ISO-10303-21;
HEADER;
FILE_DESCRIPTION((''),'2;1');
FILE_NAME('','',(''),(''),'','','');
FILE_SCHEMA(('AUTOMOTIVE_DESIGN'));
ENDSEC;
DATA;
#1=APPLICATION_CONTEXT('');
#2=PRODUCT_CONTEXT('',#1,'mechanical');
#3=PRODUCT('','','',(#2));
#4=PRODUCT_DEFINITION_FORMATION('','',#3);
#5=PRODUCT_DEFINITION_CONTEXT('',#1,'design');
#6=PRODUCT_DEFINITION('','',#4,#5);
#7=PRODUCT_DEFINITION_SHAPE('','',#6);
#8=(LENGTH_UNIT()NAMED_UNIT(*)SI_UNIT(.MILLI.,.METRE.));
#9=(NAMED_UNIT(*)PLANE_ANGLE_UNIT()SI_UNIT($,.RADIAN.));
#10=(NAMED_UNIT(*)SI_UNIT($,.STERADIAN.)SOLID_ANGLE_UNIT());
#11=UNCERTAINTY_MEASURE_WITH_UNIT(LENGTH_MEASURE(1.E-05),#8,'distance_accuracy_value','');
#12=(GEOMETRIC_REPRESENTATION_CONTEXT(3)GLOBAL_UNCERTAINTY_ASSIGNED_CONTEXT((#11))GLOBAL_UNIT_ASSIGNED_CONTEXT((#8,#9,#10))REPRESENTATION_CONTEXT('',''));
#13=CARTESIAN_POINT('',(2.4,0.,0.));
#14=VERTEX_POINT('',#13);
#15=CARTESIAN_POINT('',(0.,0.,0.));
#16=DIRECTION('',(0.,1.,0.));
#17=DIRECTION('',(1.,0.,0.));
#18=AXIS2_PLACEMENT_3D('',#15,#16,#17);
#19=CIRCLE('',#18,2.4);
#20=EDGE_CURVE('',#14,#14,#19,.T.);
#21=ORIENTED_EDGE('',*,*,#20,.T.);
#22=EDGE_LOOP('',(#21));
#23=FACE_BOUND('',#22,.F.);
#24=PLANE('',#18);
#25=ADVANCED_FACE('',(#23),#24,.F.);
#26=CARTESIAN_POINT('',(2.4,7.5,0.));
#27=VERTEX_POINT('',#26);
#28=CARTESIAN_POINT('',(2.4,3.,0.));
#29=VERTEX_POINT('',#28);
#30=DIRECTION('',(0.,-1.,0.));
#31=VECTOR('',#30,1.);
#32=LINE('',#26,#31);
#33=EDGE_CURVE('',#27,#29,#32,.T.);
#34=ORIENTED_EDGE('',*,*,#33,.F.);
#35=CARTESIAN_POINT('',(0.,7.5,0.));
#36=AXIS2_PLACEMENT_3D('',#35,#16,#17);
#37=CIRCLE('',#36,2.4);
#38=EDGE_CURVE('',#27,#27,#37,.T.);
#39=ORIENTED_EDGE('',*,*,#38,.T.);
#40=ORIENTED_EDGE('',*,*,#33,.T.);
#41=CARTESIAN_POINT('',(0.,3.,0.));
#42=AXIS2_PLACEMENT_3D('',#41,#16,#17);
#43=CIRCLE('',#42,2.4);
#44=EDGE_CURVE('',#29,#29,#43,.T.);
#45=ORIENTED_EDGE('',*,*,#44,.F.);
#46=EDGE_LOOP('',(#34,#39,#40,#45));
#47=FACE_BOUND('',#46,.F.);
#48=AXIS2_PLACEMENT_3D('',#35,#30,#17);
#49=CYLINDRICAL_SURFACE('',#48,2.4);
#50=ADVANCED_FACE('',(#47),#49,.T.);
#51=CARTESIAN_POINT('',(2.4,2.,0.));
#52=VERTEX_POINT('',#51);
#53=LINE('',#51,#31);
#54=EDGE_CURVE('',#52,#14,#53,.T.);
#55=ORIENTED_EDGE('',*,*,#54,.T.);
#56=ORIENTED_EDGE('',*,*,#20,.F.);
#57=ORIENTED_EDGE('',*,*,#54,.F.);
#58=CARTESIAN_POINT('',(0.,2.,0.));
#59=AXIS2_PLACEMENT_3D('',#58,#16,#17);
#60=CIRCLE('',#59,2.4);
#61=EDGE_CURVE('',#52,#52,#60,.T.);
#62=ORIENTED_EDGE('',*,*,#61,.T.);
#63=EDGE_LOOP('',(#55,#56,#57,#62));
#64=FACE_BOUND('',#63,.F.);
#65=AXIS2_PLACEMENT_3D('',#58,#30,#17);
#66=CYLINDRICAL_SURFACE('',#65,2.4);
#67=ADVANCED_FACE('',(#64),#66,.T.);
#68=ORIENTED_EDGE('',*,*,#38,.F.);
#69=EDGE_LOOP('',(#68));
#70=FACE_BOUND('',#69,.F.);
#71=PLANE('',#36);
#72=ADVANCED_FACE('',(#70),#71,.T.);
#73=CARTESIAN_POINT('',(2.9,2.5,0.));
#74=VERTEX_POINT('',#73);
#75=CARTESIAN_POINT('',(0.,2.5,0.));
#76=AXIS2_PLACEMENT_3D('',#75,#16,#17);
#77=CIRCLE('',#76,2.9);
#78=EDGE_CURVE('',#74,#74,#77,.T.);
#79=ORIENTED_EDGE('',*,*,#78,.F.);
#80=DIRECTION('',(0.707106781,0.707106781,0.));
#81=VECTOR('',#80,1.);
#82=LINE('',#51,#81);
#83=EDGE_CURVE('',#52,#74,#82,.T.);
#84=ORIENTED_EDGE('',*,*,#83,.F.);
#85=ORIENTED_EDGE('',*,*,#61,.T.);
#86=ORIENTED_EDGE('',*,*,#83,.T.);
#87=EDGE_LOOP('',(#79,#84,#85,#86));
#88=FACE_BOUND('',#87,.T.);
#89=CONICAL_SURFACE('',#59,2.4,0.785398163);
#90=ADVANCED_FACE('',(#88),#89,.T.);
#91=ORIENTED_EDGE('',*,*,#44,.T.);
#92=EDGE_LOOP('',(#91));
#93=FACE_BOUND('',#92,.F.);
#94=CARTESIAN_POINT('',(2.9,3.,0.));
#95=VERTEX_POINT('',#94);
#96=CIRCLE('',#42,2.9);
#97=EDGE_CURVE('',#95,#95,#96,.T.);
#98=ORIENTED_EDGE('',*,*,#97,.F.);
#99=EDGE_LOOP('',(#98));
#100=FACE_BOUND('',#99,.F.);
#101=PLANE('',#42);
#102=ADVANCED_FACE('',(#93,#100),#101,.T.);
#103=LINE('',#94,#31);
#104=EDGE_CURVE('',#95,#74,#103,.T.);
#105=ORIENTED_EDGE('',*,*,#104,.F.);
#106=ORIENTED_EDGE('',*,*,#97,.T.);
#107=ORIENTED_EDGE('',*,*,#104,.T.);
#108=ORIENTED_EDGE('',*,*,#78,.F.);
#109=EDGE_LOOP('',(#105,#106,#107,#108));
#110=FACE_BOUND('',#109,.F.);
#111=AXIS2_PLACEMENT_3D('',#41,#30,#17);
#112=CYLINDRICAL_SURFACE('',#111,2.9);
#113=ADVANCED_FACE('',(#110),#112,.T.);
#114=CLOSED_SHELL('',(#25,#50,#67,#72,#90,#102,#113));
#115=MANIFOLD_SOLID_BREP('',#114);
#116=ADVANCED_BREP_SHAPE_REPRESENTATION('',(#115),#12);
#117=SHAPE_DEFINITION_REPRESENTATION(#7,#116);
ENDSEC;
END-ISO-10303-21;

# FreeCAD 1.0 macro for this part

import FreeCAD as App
import Part
import Sketcher
Q = App.Units.Quantity


def add_polygon(sketch, points):
    """Adds a closed chain of lines whose ends are joined by coincident constraints."""
    first, n = sketch.GeometryCount, len(points)
    for a, b in zip(points, points[1:] + points[:1]):
        sketch.addGeometry(Part.LineSegment(App.Vector(*a, 0), App.Vector(*b, 0)), False)
    for i in range(n):
        sketch.addConstraint(Sketcher.Constraint("Coincident", first + i, 2, first + (i + 1) % n, 1))

doc = App.newDocument("Part")
body = doc.addObject("PartDesign::Body", "Body")

sketch1 = body.newObject("Sketcher::SketchObject", "Sketch")
sketch1.AttachmentSupport = (doc.getObject("XY_Plane"), [""])
sketch1.MapMode = "FlatFace"
add_polygon(sketch1, [(0, 7.5), (0, 0), (2.4, 0), (2.4, 2), (2.9, 2.5), (2.9, 3), (2.4, 3), (2.4, 7.5)])
sketch1.addConstraint([
    Sketcher.Constraint("Vertical", 0),
    Sketcher.Constraint("Horizontal", 1),
    Sketcher.Constraint("Vertical", 2),
    Sketcher.Constraint("Vertical", 4),
    Sketcher.Constraint("Horizontal", 5),
    Sketcher.Constraint("Vertical", 6),
    Sketcher.Constraint("Horizontal", 7),
    Sketcher.Constraint("Coincident", 0, 2, -1, 1),
    Sketcher.Constraint("Vertical", 2, 2, 5, 2),
    Sketcher.Constraint("Equal", 5, 4),
    Sketcher.Constraint("DistanceY", 2, 1, 2, 2, 2.0),
    Sketcher.Constraint("Angle", 3, Q("45 deg")),
    Sketcher.Constraint("DistanceX", 1, 1, 1, 2, 2.4),
    Sketcher.Constraint("DistanceX", 5, 2, 5, 1, 0.5),
    Sketcher.Constraint("DistanceY", 6, 1, 6, 2, 4.5),
])
revolution = body.newObject("PartDesign::Revolution", "Revolution")
revolution.Profile = sketch1
revolution.ReferenceAxis = (sketch1, ["V_Axis"])
revolution.Angle = 360

doc.recompute()
